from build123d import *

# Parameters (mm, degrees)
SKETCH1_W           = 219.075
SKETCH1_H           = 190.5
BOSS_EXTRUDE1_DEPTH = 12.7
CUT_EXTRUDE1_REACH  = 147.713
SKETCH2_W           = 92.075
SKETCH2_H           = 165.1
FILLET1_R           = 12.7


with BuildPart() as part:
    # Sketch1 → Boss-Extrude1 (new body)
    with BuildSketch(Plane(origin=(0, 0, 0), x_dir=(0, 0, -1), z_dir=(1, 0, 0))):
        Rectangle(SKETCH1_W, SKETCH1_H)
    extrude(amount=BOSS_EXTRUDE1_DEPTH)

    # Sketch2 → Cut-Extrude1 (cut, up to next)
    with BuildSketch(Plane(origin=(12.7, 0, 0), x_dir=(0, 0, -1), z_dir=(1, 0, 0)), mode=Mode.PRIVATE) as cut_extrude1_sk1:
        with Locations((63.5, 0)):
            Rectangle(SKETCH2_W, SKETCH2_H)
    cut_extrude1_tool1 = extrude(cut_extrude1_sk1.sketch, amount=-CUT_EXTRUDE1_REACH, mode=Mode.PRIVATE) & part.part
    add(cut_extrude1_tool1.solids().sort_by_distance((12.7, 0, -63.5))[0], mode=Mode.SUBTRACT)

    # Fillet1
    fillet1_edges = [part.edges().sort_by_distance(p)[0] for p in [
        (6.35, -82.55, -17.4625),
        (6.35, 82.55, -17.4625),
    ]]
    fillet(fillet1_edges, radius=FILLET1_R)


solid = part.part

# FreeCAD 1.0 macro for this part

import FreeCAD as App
import Part
import Sketcher
Q = App.Units.Quantity


def edges_at(feature, points):
    """Names of the edges that pass closest to the given points."""
    edges = feature.Shape.Edges
    near = lambda p: min(range(len(edges)), key=lambda i: edges[i].distToShape(Part.Vertex(*p))[0])
    return sorted({f"Edge{near(p) + 1}" for p in points})


def add_polygon(sketch, points):
    """Adds a closed chain of lines whose ends are joined by coincident constraints."""
    first, n = sketch.GeometryCount, len(points)
    for a, b in zip(points, points[1:] + points[:1]):
        sketch.addGeometry(Part.LineSegment(App.Vector(*a, 0), App.Vector(*b, 0)), False)
    for i in range(n):
        sketch.addConstraint(Sketcher.Constraint("Coincident", first + i, 2, first + (i + 1) % n, 1))

doc = App.newDocument("Part")
params = doc.addObject("Spreadsheet::Sheet", "Params")
for row, (alias, value) in enumerate([
    ("sketch1_width", "7.5 in"),
    ("sketch1_height", "8.625 in"),
    ("pad1_length", "0.5 in"),
    ("sketch2_width", "6.5 in"),
    ("sketch2_height", "3.625 in"),
    ("fillet_radius", "0.5 in"),
], start=1):
    params.set(f"A{row}", alias)
    params.set(f"B{row}", "=" + value)
    params.setAlias(f"B{row}", alias)

body = doc.addObject("PartDesign::Body", "Body")

# Sketch on YZ plane
sketch1 = body.newObject("Sketcher::SketchObject", "Sketch")
sketch1.AttachmentSupport = (doc.getObject("YZ_Plane"), [""])
sketch1.MapMode = "FlatFace"
add_polygon(sketch1, [(95, 110), (-95, 110), (-95, -110), (95, -110)])  # lines 0-3
sketch1.addConstraint([
    Sketcher.Constraint("Horizontal", 0),
    Sketcher.Constraint("Vertical", 1),
    Sketcher.Constraint("Horizontal", 2),
    Sketcher.Constraint("Vertical", 3),
    Sketcher.Constraint("Symmetric", 0, 2, 2, 2, -1, 1),
    Sketcher.Constraint("DistanceX", 0, 2, 0, 1, Q("7.5 in")),
    Sketcher.Constraint("DistanceY", 1, 2, 1, 1, Q("8.625 in")),
])
sketch1.setExpression("Constraints[9]", "Params.sketch1_width")
sketch1.setExpression("Constraints[10]", "Params.sketch1_height")
pad1 = body.newObject("PartDesign::Pad", "Pad")
pad1.Profile = sketch1
pad1.setExpression("Length", "Params.pad1_length")

# Sketch on YZ plane
sketch2 = body.newObject("Sketcher::SketchObject", "Sketch001")
sketch2.AttachmentSupport = (doc.getObject("YZ_Plane"), [""])
sketch2.MapMode = "FlatFace"
sketch2.AttachmentOffset = App.Placement(App.Vector(0, 0, 0.5 * 25.4), App.Rotation())
add_polygon(sketch2, [(83, -17), (-83, -17), (-83, -110), (83, -110)])  # lines 0-3
sketch2.addConstraint([
    Sketcher.Constraint("Horizontal", 0),
    Sketcher.Constraint("Vertical", 1),
    Sketcher.Constraint("Horizontal", 2),
    Sketcher.Constraint("Vertical", 3),
    Sketcher.Constraint("DistanceX", 0, 2, 0, 1, Q("6.5 in")),
    Sketcher.Constraint("DistanceY", 1, 2, 1, 1, Q("3.625 in")),
    Sketcher.Constraint("DistanceX", 0, 2, -1, 1, Q("3.25 in")),
    Sketcher.Constraint("DistanceY", 0, 2, -1, 1, Q("0.6875 in")),
])
sketch2.setExpression("Constraints[8]", "Params.sketch2_width")
sketch2.setExpression("Constraints[9]", "Params.sketch2_height")
pocket1 = body.newObject("PartDesign::Pocket", "Pocket")
pocket1.Profile = sketch2
pocket1.Type = "UpToFirst"
doc.recompute()

fillet = body.newObject("PartDesign::Fillet", "Fillet")
fillet.Base = (pocket1, edges_at(pocket1, [(6.35, -82.55, -17.462), (6.35, 82.55, -17.462)]))
fillet.setExpression("Radius", "Params.fillet_radius")

doc.recompute()
